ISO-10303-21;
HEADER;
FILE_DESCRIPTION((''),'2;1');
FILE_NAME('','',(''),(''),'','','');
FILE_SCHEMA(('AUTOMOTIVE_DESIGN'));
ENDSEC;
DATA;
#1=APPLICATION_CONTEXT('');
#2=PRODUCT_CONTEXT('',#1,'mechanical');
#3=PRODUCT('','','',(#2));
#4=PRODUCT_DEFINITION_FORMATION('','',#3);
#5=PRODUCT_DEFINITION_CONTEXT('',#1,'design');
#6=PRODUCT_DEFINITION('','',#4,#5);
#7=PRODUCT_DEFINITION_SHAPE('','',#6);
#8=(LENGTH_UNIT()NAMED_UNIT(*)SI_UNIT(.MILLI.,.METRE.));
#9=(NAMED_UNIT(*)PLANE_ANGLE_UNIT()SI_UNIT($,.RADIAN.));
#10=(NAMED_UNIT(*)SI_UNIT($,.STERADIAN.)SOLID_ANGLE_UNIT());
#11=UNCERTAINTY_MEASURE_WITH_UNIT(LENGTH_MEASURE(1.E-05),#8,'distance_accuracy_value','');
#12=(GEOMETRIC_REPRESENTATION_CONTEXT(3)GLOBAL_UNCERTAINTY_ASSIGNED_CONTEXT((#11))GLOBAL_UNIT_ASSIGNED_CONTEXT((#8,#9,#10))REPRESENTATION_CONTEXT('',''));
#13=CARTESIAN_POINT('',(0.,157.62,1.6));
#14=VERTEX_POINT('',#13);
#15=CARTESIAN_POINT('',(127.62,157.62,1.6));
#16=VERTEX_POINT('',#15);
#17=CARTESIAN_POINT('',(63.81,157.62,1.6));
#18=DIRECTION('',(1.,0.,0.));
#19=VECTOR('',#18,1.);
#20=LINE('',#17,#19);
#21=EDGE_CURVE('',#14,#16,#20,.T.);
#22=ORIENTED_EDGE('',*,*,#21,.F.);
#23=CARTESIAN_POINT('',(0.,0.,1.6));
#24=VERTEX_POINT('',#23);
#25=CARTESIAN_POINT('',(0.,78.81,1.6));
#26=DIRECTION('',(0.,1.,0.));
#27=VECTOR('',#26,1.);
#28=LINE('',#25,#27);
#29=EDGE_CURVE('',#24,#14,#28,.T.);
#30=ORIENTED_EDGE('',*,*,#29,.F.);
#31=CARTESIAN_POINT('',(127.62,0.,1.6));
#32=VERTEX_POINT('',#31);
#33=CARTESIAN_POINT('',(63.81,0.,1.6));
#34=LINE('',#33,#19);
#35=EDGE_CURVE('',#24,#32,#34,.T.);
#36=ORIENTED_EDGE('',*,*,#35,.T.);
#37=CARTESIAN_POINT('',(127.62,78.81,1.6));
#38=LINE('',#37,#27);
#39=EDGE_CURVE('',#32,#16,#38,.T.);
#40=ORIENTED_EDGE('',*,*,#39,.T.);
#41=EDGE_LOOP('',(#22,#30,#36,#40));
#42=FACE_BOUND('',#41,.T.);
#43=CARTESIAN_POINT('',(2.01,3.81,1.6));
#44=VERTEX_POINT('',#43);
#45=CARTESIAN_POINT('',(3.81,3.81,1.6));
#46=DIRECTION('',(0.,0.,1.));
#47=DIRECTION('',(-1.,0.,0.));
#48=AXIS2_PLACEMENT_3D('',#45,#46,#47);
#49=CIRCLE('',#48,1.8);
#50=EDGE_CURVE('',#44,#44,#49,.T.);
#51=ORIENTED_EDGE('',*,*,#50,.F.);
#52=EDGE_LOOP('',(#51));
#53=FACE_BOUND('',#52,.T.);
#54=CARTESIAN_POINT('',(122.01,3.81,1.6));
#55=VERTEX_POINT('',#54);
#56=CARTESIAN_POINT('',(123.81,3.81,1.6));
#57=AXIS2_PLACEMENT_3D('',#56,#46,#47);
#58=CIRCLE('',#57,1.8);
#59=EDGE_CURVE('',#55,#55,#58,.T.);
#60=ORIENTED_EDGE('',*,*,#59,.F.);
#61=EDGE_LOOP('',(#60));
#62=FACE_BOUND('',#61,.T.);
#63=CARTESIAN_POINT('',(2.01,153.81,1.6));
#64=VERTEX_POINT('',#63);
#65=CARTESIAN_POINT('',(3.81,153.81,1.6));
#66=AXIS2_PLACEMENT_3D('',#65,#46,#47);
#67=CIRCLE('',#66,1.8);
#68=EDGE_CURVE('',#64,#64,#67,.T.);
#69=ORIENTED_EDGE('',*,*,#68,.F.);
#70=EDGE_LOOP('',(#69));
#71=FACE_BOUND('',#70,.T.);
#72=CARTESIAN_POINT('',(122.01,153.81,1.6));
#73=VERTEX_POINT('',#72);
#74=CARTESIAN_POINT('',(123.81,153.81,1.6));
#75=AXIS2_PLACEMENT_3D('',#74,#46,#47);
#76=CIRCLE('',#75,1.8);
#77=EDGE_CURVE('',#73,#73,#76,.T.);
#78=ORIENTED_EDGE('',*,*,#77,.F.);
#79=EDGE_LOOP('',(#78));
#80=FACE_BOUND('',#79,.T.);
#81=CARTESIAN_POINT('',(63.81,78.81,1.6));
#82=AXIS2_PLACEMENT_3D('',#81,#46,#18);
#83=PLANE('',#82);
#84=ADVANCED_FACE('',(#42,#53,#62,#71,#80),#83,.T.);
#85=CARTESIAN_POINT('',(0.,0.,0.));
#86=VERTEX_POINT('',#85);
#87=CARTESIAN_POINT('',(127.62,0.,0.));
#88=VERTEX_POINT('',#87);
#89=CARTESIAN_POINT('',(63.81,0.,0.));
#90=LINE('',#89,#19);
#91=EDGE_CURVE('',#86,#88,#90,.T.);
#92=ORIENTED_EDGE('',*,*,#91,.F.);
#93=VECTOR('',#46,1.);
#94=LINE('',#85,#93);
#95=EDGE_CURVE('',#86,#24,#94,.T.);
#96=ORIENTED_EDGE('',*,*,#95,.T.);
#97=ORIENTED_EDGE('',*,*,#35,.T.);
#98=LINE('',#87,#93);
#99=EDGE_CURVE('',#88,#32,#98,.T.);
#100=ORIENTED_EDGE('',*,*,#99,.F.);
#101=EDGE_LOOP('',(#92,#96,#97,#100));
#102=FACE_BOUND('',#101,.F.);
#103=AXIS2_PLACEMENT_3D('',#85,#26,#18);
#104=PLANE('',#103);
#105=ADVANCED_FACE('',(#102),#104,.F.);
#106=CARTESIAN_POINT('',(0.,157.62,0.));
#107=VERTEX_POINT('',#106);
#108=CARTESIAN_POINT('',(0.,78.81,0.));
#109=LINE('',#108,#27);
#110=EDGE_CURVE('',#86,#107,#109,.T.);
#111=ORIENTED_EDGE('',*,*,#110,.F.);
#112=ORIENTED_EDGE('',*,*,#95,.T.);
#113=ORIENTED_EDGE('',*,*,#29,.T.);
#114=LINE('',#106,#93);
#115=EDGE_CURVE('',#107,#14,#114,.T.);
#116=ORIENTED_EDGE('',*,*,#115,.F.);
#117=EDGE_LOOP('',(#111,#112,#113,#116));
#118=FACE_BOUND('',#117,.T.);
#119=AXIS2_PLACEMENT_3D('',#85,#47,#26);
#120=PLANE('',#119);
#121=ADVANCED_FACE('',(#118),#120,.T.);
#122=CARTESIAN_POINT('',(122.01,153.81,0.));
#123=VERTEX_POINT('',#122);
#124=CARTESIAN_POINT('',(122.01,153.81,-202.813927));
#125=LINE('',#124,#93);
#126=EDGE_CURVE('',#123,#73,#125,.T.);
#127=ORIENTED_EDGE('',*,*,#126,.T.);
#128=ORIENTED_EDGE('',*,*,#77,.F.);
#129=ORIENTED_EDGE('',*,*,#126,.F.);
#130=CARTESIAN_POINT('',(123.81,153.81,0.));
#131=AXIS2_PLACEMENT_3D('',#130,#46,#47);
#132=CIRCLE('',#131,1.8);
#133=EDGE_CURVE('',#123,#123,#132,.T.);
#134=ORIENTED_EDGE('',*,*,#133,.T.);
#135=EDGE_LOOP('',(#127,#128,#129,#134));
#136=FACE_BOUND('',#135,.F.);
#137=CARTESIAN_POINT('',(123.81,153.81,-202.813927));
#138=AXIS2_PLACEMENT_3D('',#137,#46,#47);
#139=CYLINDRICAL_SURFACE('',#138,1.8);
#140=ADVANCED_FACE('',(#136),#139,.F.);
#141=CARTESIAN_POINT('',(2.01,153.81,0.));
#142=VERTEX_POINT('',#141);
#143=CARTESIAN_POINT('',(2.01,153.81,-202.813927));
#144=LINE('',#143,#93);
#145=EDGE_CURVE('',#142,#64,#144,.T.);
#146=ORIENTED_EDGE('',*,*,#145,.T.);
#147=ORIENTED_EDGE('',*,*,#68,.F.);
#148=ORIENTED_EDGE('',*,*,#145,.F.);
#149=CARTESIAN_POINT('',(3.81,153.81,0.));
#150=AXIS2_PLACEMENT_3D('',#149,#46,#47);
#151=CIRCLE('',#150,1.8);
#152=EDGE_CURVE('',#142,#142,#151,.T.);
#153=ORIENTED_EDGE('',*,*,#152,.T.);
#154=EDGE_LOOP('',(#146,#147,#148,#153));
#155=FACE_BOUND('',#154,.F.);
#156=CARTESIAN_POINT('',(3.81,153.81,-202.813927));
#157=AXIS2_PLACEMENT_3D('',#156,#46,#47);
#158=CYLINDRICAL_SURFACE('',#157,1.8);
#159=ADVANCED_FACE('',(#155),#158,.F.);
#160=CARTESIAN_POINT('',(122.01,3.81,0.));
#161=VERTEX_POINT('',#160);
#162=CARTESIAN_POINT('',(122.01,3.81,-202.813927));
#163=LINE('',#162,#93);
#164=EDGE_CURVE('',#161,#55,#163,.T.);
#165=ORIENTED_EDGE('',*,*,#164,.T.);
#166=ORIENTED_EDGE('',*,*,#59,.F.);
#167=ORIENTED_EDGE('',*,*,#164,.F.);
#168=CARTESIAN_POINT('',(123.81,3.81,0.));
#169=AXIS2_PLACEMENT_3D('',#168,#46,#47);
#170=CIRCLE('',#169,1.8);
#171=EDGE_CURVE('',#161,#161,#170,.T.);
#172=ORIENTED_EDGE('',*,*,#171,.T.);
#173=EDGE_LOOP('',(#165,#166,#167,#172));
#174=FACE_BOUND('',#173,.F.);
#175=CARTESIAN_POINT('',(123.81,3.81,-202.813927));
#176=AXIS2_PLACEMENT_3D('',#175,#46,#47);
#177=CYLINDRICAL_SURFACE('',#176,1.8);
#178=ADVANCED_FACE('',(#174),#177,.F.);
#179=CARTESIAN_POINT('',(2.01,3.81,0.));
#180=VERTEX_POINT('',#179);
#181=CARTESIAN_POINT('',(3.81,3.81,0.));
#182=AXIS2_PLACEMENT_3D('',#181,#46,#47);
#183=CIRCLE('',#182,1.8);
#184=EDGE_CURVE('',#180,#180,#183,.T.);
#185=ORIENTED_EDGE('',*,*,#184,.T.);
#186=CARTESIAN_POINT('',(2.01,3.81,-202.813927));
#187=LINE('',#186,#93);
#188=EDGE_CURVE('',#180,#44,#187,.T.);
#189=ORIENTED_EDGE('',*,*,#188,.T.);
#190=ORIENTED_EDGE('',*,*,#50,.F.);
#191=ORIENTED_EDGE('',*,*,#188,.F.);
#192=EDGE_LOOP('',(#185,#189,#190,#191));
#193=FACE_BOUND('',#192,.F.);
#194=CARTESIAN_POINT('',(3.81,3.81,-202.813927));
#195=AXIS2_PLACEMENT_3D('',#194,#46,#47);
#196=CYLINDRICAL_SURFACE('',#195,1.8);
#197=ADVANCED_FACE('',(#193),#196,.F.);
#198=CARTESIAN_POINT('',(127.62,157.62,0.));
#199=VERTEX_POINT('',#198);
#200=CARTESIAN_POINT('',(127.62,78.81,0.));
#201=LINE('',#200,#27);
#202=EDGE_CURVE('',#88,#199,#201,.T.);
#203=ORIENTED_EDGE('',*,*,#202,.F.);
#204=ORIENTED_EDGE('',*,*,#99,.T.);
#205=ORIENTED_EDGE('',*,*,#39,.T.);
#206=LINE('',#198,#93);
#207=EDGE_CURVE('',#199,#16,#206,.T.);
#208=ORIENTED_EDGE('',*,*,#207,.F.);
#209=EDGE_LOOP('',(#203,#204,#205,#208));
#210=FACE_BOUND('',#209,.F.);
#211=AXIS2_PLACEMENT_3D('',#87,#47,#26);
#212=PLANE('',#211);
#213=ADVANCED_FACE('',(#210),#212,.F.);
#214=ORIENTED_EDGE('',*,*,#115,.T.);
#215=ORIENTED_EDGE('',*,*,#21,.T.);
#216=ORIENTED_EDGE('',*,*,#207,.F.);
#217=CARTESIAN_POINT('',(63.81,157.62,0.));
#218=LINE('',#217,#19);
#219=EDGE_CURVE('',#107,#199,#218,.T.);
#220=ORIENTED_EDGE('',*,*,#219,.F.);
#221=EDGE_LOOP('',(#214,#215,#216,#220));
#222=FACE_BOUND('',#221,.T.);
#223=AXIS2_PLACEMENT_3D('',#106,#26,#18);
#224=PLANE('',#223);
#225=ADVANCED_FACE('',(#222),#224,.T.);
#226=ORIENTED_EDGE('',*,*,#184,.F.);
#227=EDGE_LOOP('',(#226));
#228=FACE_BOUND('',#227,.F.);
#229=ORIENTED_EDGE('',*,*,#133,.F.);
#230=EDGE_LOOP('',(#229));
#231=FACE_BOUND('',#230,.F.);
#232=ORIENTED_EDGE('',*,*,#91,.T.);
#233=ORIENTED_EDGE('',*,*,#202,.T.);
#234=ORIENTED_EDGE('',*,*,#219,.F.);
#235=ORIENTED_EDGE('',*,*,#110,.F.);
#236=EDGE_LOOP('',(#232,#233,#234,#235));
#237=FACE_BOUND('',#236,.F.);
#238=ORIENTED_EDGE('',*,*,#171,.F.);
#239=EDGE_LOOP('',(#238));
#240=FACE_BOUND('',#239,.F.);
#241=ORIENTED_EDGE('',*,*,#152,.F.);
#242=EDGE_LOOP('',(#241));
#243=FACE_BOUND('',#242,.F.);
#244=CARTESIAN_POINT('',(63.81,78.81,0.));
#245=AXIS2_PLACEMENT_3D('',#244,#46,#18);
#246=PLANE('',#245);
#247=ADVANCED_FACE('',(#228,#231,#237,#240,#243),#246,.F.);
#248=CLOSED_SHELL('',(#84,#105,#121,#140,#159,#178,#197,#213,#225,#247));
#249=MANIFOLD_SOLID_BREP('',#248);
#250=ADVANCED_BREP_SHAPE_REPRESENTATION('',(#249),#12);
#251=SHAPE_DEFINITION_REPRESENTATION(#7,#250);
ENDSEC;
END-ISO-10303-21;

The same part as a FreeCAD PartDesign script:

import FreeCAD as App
import Part
import Sketcher
Q = App.Units.Quantity

doc = App.newDocument("Part")
body = doc.addObject("PartDesign::Body", "Body")

sketch1 = body.newObject("Sketcher::SketchObject", "Sketch")
sketch1.AttachmentSupport = (doc.getObject("XY_Plane"), [""])
sketch1.MapMode = "FlatFace"
sketch1.addGeometry([
    Part.LineSegment(App.Vector(0, 158, 0), App.Vector(0, 0, 0)),
    Part.LineSegment(App.Vector(0, 0, 0), App.Vector(128, 0, 0)),
    Part.LineSegment(App.Vector(128, 0, 0), App.Vector(128, 158, 0)),
    Part.LineSegment(App.Vector(128, 158, 0), App.Vector(0, 158, 0)),
], False)
sketch1.addConstraint([
    Sketcher.Constraint("Coincident", 0, 2, 1, 1),
    Sketcher.Constraint("Coincident", 1, 2, 2, 1),
    Sketcher.Constraint("Coincident", 2, 2, 3, 1),
    Sketcher.Constraint("Coincident", 3, 2, 0, 1),
    Sketcher.Constraint("Vertical", 0),
    Sketcher.Constraint("Horizontal", 1),
    Sketcher.Constraint("Vertical", 2),
    Sketcher.Constraint("Horizontal", 3),
    Sketcher.Constraint("Coincident", 0, 2, -1, 1),
    Sketcher.Constraint("DistanceX", 1, 1, 1, 2, Q("127.62 mm")),
    Sketcher.Constraint("DistanceY", 0, 2, 0, 1, Q("157.62 mm")),
])
pad1 = body.newObject("PartDesign::Pad", "Pad")
pad1.Profile = sketch1
pad1.Length = 1.6

sketch2 = body.newObject("Sketcher::SketchObject", "Sketch001")
sketch2.AttachmentSupport = (doc.getObject("XY_Plane"), [""])
sketch2.MapMode = "FlatFace"
sketch2.addGeometry([
    Part.Circle(App.Vector(3.8, 153.8, 0), App.Vector(0, 0, 1), 1.8),
    Part.Circle(App.Vector(123.8, 153.8, 0), App.Vector(0, 0, 1), 1.8),
    Part.Circle(App.Vector(3.8, 3.8, 0), App.Vector(0, 0, 1), 1.8),
    Part.Circle(App.Vector(123.8, 3.8, 0), App.Vector(0, 0, 1), 1.8),
], False)
sketch2.addConstraint([
    Sketcher.Constraint("Equal", 0, 1),
    Sketcher.Constraint("Equal", 1, 2),
    Sketcher.Constraint("Equal", 2, 3),
    Sketcher.Constraint("Horizontal", 0, 3, 1, 3),
    Sketcher.Constraint("Horizontal", 2, 3, 3, 3),
    Sketcher.Constraint("Vertical", 0, 3, 2, 3),
    Sketcher.Constraint("Vertical", 1, 3, 3, 3),
    Sketcher.Constraint("Diameter", 0, Q("3.6 mm")),
    Sketcher.Constraint("DistanceX", 0, 3, 1, 3, Q("120 mm")),
    Sketcher.Constraint("DistanceY", 2, 3, 0, 3, Q("150 mm")),
    Sketcher.Constraint("DistanceX", -1, 1, 0, 3, Q("3.81 mm")),
    Sketcher.Constraint("DistanceY", -1, 1, 0, 3, Q("153.81 mm")),
])
doc.recompute()
hole = body.newObject("PartDesign::Hole", "Hole")
hole.Profile = sketch2
hole.ThreadType = "None"
hole.Diameter = 3.6
hole.DepthType = "ThroughAll"
hole.Reversed = True

doc.recompute()
